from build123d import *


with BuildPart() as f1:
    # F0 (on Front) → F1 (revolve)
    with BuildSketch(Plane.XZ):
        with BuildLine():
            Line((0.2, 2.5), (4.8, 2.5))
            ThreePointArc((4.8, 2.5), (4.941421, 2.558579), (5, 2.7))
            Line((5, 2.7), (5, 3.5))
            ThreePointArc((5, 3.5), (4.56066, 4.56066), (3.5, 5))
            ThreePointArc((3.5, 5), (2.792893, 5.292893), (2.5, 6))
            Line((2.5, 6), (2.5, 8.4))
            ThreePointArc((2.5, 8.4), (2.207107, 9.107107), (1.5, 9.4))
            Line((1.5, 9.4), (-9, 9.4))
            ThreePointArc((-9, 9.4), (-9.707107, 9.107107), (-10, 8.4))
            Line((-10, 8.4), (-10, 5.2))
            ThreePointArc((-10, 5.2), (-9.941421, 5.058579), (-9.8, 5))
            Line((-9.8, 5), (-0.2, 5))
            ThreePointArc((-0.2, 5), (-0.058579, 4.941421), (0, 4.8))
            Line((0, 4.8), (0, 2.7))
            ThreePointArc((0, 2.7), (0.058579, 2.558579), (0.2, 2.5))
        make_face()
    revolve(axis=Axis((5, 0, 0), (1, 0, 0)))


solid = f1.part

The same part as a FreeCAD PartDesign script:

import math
import FreeCAD as App
import Part
import Sketcher
from FreeCAD import Vector

doc = App.newDocument("Part")
body = doc.addObject("PartDesign::Body", "Body")

# Sketch on XZ plane
sketch1 = doc.addObject("Sketcher::SketchObject", "Sketch")
body.addObject(sketch1)
sketch1.AttachmentSupport = (doc.XZ_Plane, [""])
sketch1.MapMode = "FlatFace"
sketch1.addGeometry(Part.LineSegment(Vector(0.2, 2.5, 0), Vector(4.8, 2.5, 0)), False)
sketch1.addGeometry(Part.ArcOfCircle(Part.Circle(Vector(4.8, 2.7, 0), Vector(0, 0, 1), 0.2), math.radians(-90), math.radians(0)), False)
sketch1.addGeometry(Part.LineSegment(Vector(5, 2.7, 0), Vector(5, 3.5, 0)), False)
sketch1.addGeometry(Part.ArcOfCircle(Part.Circle(Vector(3.5, 3.5, 0), Vector(0, 0, 1), 1.5), math.radians(0), math.radians(90)), False)
sketch1.addGeometry(Part.ArcOfCircle(Part.Circle(Vector(3.5, 6, 0), Vector(0, 0, 1), 1), math.radians(180), math.radians(270)), False)
sketch1.addGeometry(Part.LineSegment(Vector(2.5, 6, 0), Vector(2.5, 8.4, 0)), False)
sketch1.addGeometry(Part.ArcOfCircle(Part.Circle(Vector(1.5, 8.4, 0), Vector(0, 0, 1), 1), math.radians(0), math.radians(90)), False)
sketch1.addGeometry(Part.LineSegment(Vector(1.5, 9.4, 0), Vector(-9, 9.4, 0)), False)
sketch1.addGeometry(Part.ArcOfCircle(Part.Circle(Vector(-9, 8.4, 0), Vector(0, 0, 1), 1), math.radians(90), math.radians(180)), False)
sketch1.addGeometry(Part.LineSegment(Vector(-10, 8.4, 0), Vector(-10, 5.2, 0)), False)
sketch1.addGeometry(Part.ArcOfCircle(Part.Circle(Vector(-9.8, 5.2, 0), Vector(0, 0, 1), 0.2), math.radians(-180), math.radians(-90)), False)
sketch1.addGeometry(Part.LineSegment(Vector(-9.8, 5, 0), Vector(-0.2, 5, 0)), False)
sketch1.addGeometry(Part.ArcOfCircle(Part.Circle(Vector(-0.2, 4.8, 0), Vector(0, 0, 1), 0.2), math.radians(0), math.radians(90)), False)
sketch1.addGeometry(Part.LineSegment(Vector(0, 4.8, 0), Vector(0, 2.7, 0)), False)
sketch1.addGeometry(Part.ArcOfCircle(Part.Circle(Vector(0.2, 2.7, 0), Vector(0, 0, 1), 0.2), math.radians(-180), math.radians(-90)), False)
sketch1.addConstraint(Sketcher.Constraint("Coincident", 0, 2, 1, 1))
sketch1.addConstraint(Sketcher.Constraint("Coincident", 1, 2, 2, 1))
sketch1.addConstraint(Sketcher.Constraint("Tangent", 2, 2, 3, 1))
sketch1.addConstraint(Sketcher.Constraint("Tangent", 3, 2, 4, 2))
sketch1.addConstraint(Sketcher.Constraint("Tangent", 4, 1, 5, 1))
sketch1.addConstraint(Sketcher.Constraint("Tangent", 5, 2, 6, 1))
sketch1.addConstraint(Sketcher.Constraint("Tangent", 6, 2, 7, 1))
sketch1.addConstraint(Sketcher.Constraint("Tangent", 7, 2, 8, 1))
sketch1.addConstraint(Sketcher.Constraint("Tangent", 8, 2, 9, 1))
sketch1.addConstraint(Sketcher.Constraint("Coincident", 9, 2, 10, 1))
sketch1.addConstraint(Sketcher.Constraint("Coincident", 10, 2, 11, 1))
sketch1.addConstraint(Sketcher.Constraint("Coincident", 11, 2, 12, 2))
sketch1.addConstraint(Sketcher.Constraint("Coincident", 12, 1, 13, 1))
sketch1.addConstraint(Sketcher.Constraint("Coincident", 13, 2, 14, 1))
sketch1.addConstraint(Sketcher.Constraint("Coincident", 14, 2, 0, 1))
sketch1.addConstraint(Sketcher.Constraint("Horizontal", 0))
sketch1.addConstraint(Sketcher.Constraint("Vertical", 2))
sketch1.addConstraint(Sketcher.Constraint("Vertical", 5))
sketch1.addConstraint(Sketcher.Constraint("Horizontal", 7))
sketch1.addConstraint(Sketcher.Constraint("Vertical", 9))
sketch1.addConstraint(Sketcher.Constraint("Horizontal", 11))
sketch1.addConstraint(Sketcher.Constraint("Vertical", 13))
sketch1.addConstraint(Sketcher.Constraint("Equal", 4, 6))
sketch1.addConstraint(Sketcher.Constraint("Equal", 6, 8))
sketch1.addConstraint(Sketcher.Constraint("Equal", 1, 10))
sketch1.addConstraint(Sketcher.Constraint("Equal", 10, 12))
sketch1.addConstraint(Sketcher.Constraint("Equal", 12, 14))
sketch1.addConstraint(Sketcher.Constraint("PointOnObject", 12, 1, -2))
sketch1.addConstraint(Sketcher.Constraint("Horizontal", 14, 3, 1, 2))
sketch1.addConstraint(Sketcher.Constraint("Horizontal", 10, 3, 9, 2))
sketch1.addConstraint(Sketcher.Constraint("Horizontal", 3, 2, 10, 2))
sketch1.addConstraint(Sketcher.Constraint("Horizontal", 1, 2, 13, 2))
sketch1.addConstraint(Sketcher.Constraint("Vertical", 3, 3, 4, 3))
sketch1.addConstraint(Sketcher.Constraint("Vertical", 1, 3, 0, 2))
sketch1.addConstraint(Sketcher.Constraint("Vertical", 12, 3, 11, 2))
sketch1.addConstraint(Sketcher.Constraint("Radius", 4, 0.999999))
sketch1.addConstraint(Sketcher.Constraint("Radius", 1, 0.200001))
sketch1.addConstraint(Sketcher.Constraint("Radius", 3, 1.500001))
sketch1.addConstraint(Sketcher.Constraint("DistanceX", 0, 1, 0, 2, 4.6))
sketch1.addConstraint(Sketcher.Constraint("DistanceX", 7, 2, 7, 1, 10.5))
sketch1.addConstraint(Sketcher.Constraint("DistanceX", 11, 1, 11, 2, 9.6))
sketch1.addConstraint(Sketcher.Constraint("DistanceY", 2, 1, 2, 2, 0.8))
sketch1.addConstraint(Sketcher.Constraint("DistanceY", 5, 1, 5, 2, 2.4))
sketch1.addConstraint(Sketcher.Constraint("DistanceY", 13, 2, 13, 1, 2.1))
sketch1.addConstraint(Sketcher.Constraint("DistanceY", -1, 1, 4, 3, 5.999999))
sketch1.addConstraint(Sketcher.Constraint("DistanceX", 8, 3, -1, 1, 9.000001))
revolution = doc.addObject("PartDesign::Revolution", "Revolution")
body.addObject(revolution)
revolution.Profile = sketch1
revolution.ReferenceAxis = (sketch1, ["H_Axis"])
revolution.Angle = 360

doc.recompute()
